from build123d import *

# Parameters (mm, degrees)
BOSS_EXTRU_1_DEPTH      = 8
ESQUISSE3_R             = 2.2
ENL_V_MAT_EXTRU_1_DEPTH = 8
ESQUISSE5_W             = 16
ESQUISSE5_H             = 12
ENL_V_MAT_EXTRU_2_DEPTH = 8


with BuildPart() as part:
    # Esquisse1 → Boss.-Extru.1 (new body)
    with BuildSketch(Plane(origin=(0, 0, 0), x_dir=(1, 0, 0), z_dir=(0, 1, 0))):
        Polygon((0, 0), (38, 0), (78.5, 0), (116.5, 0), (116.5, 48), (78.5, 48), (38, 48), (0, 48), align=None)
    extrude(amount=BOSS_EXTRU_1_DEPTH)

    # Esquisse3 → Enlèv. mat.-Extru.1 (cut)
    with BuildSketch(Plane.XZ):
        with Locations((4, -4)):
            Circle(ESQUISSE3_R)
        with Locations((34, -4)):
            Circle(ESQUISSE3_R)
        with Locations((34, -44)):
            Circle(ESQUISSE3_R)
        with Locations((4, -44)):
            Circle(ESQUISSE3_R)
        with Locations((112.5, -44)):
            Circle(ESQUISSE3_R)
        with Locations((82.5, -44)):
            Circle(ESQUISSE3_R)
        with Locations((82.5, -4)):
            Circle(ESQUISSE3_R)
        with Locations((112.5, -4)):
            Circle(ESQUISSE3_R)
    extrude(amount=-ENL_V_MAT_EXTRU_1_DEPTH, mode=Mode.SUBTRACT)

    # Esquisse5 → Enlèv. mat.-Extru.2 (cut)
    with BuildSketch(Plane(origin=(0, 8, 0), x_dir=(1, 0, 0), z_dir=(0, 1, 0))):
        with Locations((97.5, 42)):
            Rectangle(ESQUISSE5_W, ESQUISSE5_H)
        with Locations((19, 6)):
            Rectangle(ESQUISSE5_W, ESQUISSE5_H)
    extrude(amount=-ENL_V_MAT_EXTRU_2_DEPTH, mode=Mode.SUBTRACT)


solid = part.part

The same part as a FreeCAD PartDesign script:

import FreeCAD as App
import Part
import Sketcher
from FreeCAD import Vector


def add_polygon(sketch, points):
    """Adds a closed chain of lines whose ends are joined by coincident constraints."""
    first, n = sketch.GeometryCount, len(points)
    for a, b in zip(points, points[1:] + points[:1]):
        sketch.addGeometry(Part.LineSegment(App.Vector(*a, 0), App.Vector(*b, 0)), False)
    for i in range(n):
        sketch.addConstraint(Sketcher.Constraint("Coincident", first + i, 2, first + (i + 1) % n, 1))

doc = App.newDocument("Part")
body = doc.addObject("PartDesign::Body", "Body")

# Sketch on XZ plane
sketch1 = body.newObject("Sketcher::SketchObject", "Sketch")
sketch1.AttachmentSupport = (doc.getObject("XZ_Plane"), [""])
sketch1.MapMode = "FlatFace"
add_polygon(sketch1, [(0, 0), (116.5, 0), (116.5, -48), (0, -48)])  # lines 0-3
sketch1.addConstraint([
    Sketcher.Constraint("Horizontal", 0),
    Sketcher.Constraint("Vertical", 1),
    Sketcher.Constraint("Horizontal", 2),
    Sketcher.Constraint("Vertical", 3),
    Sketcher.Constraint("Coincident", 3, 2, -1, 1),
    Sketcher.Constraint("DistanceY", 1, 2, 1, 1, 48.0),
    Sketcher.Constraint("DistanceX", 0, 1, 0, 2, 116.5),
])
pad1 = body.newObject("PartDesign::Pad", "Pad")
pad1.Profile = sketch1
pad1.Length = 8
pad1.Reversed = True

# Sketch on XZ plane
sketch2 = body.newObject("Sketcher::SketchObject", "Sketch001")
sketch2.AttachmentSupport = (doc.getObject("XZ_Plane"), [""])
sketch2.MapMode = "FlatFace"
sketch2.addGeometry([
    Part.Circle(Vector(4, -4, 0), Vector(0, 0, 1), 2.2),  # 0
    Part.Circle(Vector(34, -4, 0), Vector(0, 0, 1), 2.2),  # 1
    Part.Circle(Vector(34, -44, 0), Vector(0, 0, 1), 2.2),  # 2
    Part.Circle(Vector(4, -44, 0), Vector(0, 0, 1), 2.2),  # 3
    Part.Circle(Vector(112.5, -44, 0), Vector(0, 0, 1), 2.2),  # 4
    Part.Circle(Vector(82.5, -44, 0), Vector(0, 0, 1), 2.2),  # 5
    Part.Circle(Vector(82.5, -4, 0), Vector(0, 0, 1), 2.2),  # 6
    Part.Circle(Vector(112.5, -4, 0), Vector(0, 0, 1), 2.2),  # 7
], False)
sketch2.addConstraint([
    Sketcher.Constraint("Equal", 0, 1),
    Sketcher.Constraint("Equal", 1, 2),
    Sketcher.Constraint("Equal", 2, 3),
    Sketcher.Constraint("Equal", 3, 4),
    Sketcher.Constraint("Equal", 4, 5),
    Sketcher.Constraint("Equal", 5, 6),
    Sketcher.Constraint("Equal", 6, 7),
    Sketcher.Constraint("Horizontal", 0, 3, 1, 3),
    Sketcher.Constraint("Horizontal", 2, 3, 3, 3),
    Sketcher.Constraint("Horizontal", 3, 3, 4, 3),
    Sketcher.Constraint("Horizontal", 4, 3, 5, 3),
    Sketcher.Constraint("Horizontal", 1, 3, 6, 3),
    Sketcher.Constraint("Horizontal", 6, 3, 7, 3),
    Sketcher.Constraint("Vertical", 1, 3, 2, 3),
    Sketcher.Constraint("Vertical", 0, 3, 3, 3),
    Sketcher.Constraint("Vertical", 5, 3, 6, 3),
    Sketcher.Constraint("Vertical", 4, 3, 7, 3),
    Sketcher.Constraint("Diameter", 0, 4.4),
    Sketcher.Constraint("DistanceX", -1, 1, 0, 3, 4.0),
    Sketcher.Constraint("DistanceY", 0, 3, -1, 1, 4.0),
    Sketcher.Constraint("DistanceX", -1, 1, 1, 3, 34.0),
    Sketcher.Constraint("DistanceY", 2, 3, -1, 1, 44.0),
    Sketcher.Constraint("DistanceX", 5, 3, 4, 3, 30.0),
    Sketcher.Constraint("DistanceX", -1, 1, 4, 3, 112.5),
])
pocket1 = body.newObject("PartDesign::Pocket", "Pocket")
pocket1.Profile = sketch2
pocket1.Length = 8

# Sketch on XZ plane
sketch3 = body.newObject("Sketcher::SketchObject", "Sketch002")
sketch3.AttachmentSupport = (doc.getObject("XZ_Plane"), [""])
sketch3.MapMode = "FlatFace"
sketch3.AttachmentOffset = App.Placement(Vector(0, 0, -8), App.Rotation())
add_polygon(sketch3, [(89.5, -48), (89.5, -36), (105.5, -36), (105.5, -48)])  # lines 0-3
add_polygon(sketch3, [(11, -12), (11, 0), (27, 0), (27, -12)])  # lines 4-7
sketch3.addConstraint([
    Sketcher.Constraint("Vertical", 0),
    Sketcher.Constraint("Horizontal", 1),
    Sketcher.Constraint("Vertical", 2),
    Sketcher.Constraint("Horizontal", 3),
    Sketcher.Constraint("Vertical", 4),
    Sketcher.Constraint("Horizontal", 5),
    Sketcher.Constraint("Vertical", 6),
    Sketcher.Constraint("Horizontal", 7),
    Sketcher.Constraint("PointOnObject", 4, 2, -1),
    Sketcher.Constraint("Equal", 3, 5),
    Sketcher.Constraint("Equal", 2, 4),
    Sketcher.Constraint("DistanceX", 1, 1, 1, 2, 16.0),
    Sketcher.Constraint("DistanceY", 0, 1, 0, 2, 12.0),
    Sketcher.Constraint("DistanceY", 0, 2, -1, 1, 36.0),
    Sketcher.Constraint("DistanceX", -1, 1, 4, 2, 11.0),
    Sketcher.Constraint("DistanceX", -1, 1, 0, 2, 89.5),
])
pocket2 = body.newObject("PartDesign::Pocket", "Pocket001")
pocket2.Profile = sketch3
pocket2.Length = 8
pocket2.Reversed = True

doc.recompute()
